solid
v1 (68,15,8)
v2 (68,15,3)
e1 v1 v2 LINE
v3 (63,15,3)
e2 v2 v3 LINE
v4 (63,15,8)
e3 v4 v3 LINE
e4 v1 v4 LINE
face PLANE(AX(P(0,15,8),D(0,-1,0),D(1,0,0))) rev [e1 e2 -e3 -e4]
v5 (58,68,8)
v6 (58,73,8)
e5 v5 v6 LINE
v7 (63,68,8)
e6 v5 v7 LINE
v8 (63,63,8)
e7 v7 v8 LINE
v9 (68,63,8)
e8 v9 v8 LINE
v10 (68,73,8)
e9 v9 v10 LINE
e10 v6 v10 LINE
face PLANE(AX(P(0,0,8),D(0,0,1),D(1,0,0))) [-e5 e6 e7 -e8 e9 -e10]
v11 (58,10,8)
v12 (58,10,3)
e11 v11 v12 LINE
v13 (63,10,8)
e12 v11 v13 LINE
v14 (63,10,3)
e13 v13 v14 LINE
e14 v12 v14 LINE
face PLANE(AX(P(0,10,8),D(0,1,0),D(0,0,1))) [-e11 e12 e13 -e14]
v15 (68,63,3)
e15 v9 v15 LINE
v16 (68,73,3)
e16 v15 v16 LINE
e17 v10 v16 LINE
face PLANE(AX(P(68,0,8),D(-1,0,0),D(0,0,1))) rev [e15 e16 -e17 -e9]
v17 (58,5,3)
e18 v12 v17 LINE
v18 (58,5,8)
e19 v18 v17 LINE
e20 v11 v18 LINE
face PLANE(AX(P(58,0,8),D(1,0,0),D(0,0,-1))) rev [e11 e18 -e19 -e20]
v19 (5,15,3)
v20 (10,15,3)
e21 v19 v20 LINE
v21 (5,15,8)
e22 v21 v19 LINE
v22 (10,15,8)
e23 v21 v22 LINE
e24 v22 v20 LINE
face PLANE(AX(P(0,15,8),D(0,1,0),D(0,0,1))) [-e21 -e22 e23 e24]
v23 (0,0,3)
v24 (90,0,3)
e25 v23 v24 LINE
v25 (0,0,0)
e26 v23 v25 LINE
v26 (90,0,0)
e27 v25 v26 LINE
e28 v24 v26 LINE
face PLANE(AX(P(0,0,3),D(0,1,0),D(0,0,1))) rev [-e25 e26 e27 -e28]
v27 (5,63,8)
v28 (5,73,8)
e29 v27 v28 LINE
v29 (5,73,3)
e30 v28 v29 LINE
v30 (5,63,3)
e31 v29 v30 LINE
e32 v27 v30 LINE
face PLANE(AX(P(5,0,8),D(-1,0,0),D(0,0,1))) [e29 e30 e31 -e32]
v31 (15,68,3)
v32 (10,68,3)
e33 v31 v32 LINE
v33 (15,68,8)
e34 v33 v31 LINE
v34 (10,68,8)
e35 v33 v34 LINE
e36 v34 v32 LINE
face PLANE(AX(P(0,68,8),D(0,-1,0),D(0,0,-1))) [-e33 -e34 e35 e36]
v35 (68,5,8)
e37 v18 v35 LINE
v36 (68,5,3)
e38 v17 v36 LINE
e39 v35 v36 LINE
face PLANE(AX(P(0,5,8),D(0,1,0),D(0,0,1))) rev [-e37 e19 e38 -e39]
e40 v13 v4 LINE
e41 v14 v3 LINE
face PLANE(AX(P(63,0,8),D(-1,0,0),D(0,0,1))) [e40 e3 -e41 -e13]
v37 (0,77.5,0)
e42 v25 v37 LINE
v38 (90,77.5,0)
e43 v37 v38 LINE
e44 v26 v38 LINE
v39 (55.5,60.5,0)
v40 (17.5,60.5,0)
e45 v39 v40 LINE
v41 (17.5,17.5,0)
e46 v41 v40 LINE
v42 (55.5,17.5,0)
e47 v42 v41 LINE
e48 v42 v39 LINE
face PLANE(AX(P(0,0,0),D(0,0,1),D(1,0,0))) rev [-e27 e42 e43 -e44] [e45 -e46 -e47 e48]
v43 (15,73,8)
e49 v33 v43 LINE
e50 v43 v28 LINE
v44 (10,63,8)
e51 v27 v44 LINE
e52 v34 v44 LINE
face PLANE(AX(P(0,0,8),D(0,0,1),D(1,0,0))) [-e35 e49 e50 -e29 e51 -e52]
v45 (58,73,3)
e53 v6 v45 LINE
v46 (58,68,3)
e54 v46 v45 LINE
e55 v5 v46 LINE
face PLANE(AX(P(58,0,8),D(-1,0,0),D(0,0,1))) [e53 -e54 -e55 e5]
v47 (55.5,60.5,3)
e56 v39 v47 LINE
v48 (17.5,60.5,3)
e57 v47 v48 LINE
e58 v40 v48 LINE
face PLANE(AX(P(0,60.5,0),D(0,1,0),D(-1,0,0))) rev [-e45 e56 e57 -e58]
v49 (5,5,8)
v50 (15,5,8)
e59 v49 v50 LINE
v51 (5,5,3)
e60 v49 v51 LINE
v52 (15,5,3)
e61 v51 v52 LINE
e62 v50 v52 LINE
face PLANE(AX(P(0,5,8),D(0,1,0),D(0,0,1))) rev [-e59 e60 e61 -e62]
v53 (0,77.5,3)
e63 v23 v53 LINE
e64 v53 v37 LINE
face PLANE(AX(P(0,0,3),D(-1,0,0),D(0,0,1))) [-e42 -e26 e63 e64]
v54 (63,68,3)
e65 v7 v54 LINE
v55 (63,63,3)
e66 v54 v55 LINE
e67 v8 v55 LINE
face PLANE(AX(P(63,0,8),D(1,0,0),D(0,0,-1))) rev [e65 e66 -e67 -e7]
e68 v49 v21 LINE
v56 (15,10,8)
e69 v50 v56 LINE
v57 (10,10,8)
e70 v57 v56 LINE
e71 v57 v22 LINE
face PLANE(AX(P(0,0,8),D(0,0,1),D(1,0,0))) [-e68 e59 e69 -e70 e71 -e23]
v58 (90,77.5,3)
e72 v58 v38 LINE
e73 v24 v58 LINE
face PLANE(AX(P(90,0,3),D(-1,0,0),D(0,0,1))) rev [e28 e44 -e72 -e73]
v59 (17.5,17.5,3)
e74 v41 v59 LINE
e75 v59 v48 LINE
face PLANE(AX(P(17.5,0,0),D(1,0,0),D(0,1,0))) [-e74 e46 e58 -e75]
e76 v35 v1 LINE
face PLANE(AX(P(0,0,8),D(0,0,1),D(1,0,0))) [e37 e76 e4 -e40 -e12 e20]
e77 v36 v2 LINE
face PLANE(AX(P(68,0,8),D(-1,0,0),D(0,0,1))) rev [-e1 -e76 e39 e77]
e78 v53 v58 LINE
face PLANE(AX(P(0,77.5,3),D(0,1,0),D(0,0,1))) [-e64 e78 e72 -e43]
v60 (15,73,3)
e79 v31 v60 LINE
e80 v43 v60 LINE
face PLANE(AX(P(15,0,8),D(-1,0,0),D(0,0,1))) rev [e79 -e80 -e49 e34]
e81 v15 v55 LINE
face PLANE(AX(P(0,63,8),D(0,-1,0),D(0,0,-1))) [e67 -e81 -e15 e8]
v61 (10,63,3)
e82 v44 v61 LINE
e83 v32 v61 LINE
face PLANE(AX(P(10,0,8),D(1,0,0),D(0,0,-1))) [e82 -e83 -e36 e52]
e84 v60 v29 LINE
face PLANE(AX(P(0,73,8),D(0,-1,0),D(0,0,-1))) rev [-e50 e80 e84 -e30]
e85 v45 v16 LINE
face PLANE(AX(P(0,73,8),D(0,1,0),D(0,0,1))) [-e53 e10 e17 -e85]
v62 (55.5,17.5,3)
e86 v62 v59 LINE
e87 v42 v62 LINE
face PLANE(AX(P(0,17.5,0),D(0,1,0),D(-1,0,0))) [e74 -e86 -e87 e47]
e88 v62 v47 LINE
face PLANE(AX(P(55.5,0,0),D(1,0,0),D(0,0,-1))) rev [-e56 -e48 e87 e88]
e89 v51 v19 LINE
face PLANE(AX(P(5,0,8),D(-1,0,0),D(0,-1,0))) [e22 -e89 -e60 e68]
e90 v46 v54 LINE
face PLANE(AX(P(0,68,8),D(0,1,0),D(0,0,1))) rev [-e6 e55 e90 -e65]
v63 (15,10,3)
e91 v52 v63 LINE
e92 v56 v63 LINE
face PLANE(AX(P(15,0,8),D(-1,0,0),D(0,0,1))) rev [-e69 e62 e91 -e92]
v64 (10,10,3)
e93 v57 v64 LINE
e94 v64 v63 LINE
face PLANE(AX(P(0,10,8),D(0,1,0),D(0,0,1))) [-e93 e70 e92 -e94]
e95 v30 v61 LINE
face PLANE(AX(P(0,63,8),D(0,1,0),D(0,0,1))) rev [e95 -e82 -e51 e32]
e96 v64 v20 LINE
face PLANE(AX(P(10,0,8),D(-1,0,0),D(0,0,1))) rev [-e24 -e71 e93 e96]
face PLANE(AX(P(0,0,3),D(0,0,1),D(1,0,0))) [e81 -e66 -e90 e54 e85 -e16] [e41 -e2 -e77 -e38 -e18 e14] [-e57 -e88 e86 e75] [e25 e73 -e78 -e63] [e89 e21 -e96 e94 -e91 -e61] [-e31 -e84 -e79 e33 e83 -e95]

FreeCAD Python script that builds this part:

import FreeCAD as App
import Part
import Sketcher

V = App.Vector

doc = App.newDocument("Part")
body = doc.addObject("PartDesign::Body", "Body")
body.AllowCompound = True

# Sketch on XY plane
sketch1 = body.newObject("Sketcher::SketchObject", "Sketch")
sketch1.AttachmentSupport = (doc.getObject("XY_Plane"), [""])
sketch1.MapMode = "FlatFace"
sketch1.addGeometry([
    Part.LineSegment(V(5, 5, 0), V(15, 5, 0)),  # 0
    Part.LineSegment(V(15, 5, 0), V(15, 10, 0)),  # 1
    Part.LineSegment(V(15, 10, 0), V(10, 10, 0)),  # 2
    Part.LineSegment(V(10, 10, 0), V(10, 15, 0)),  # 3
    Part.LineSegment(V(10, 15, 0), V(5, 15, 0)),  # 4
    Part.LineSegment(V(5, 15, 0), V(5, 5, 0)),  # 5
    Part.LineSegment(V(5, 73, 0), V(5, 63, 0)),  # 6
    Part.LineSegment(V(5, 63, 0), V(10, 63, 0)),  # 7
    Part.LineSegment(V(10, 63, 0), V(10, 68, 0)),  # 8
    Part.LineSegment(V(10, 68, 0), V(15, 68, 0)),  # 9
    Part.LineSegment(V(15, 68, 0), V(15, 73, 0)),  # 10
    Part.LineSegment(V(15, 73, 0), V(5, 73, 0)),  # 11
    Part.LineSegment(V(58, 73, 0), V(58, 68, 0)),  # 12
    Part.LineSegment(V(58, 68, 0), V(63, 68, 0)),  # 13
    Part.LineSegment(V(63, 68, 0), V(63, 63, 0)),  # 14
    Part.LineSegment(V(63, 63, 0), V(68, 63, 0)),  # 15
    Part.LineSegment(V(68, 63, 0), V(68, 73, 0)),  # 16
    Part.LineSegment(V(68, 73, 0), V(58, 73, 0)),  # 17
    Part.LineSegment(V(63, 15, 0), V(63, 10, 0)),  # 18
    Part.LineSegment(V(63, 10, 0), V(58, 10, 0)),  # 19
    Part.LineSegment(V(58, 10, 0), V(58, 5, 0)),  # 20
    Part.LineSegment(V(58, 5, 0), V(68, 5, 0)),  # 21
    Part.LineSegment(V(68, 5, 0), V(68, 15, 0)),  # 22
    Part.LineSegment(V(68, 15, 0), V(63, 15, 0)),  # 23
], False)
sketch1.addConstraint([
    Sketcher.Constraint("Coincident", 0, 2, 1, 1),
    Sketcher.Constraint("Coincident", 1, 2, 2, 1),
    Sketcher.Constraint("Coincident", 2, 2, 3, 1),
    Sketcher.Constraint("Coincident", 3, 2, 4, 1),
    Sketcher.Constraint("Coincident", 4, 2, 5, 1),
    Sketcher.Constraint("Coincident", 5, 2, 0, 1),
    Sketcher.Constraint("Coincident", 6, 2, 7, 1),
    Sketcher.Constraint("Coincident", 7, 2, 8, 1),
    Sketcher.Constraint("Coincident", 8, 2, 9, 1),
    Sketcher.Constraint("Coincident", 9, 2, 10, 1),
    Sketcher.Constraint("Coincident", 10, 2, 11, 1),
    Sketcher.Constraint("Coincident", 11, 2, 6, 1),
    Sketcher.Constraint("Coincident", 12, 2, 13, 1),
    Sketcher.Constraint("Coincident", 13, 2, 14, 1),
    Sketcher.Constraint("Coincident", 14, 2, 15, 1),
    Sketcher.Constraint("Coincident", 15, 2, 16, 1),
    Sketcher.Constraint("Coincident", 16, 2, 17, 1),
    Sketcher.Constraint("Coincident", 17, 2, 12, 1),
    Sketcher.Constraint("Coincident", 18, 2, 19, 1),
    Sketcher.Constraint("Coincident", 19, 2, 20, 1),
    Sketcher.Constraint("Coincident", 20, 2, 21, 1),
    Sketcher.Constraint("Coincident", 21, 2, 22, 1),
    Sketcher.Constraint("Coincident", 22, 2, 23, 1),
    Sketcher.Constraint("Coincident", 23, 2, 18, 1),
    Sketcher.Constraint("Horizontal", 0),
    Sketcher.Constraint("Vertical", 1),
    Sketcher.Constraint("Horizontal", 2),
    Sketcher.Constraint("Vertical", 3),
    Sketcher.Constraint("Horizontal", 4),
    Sketcher.Constraint("Vertical", 5),
    Sketcher.Constraint("Vertical", 6),
    Sketcher.Constraint("Horizontal", 7),
    Sketcher.Constraint("Vertical", 8),
    Sketcher.Constraint("Horizontal", 9),
    Sketcher.Constraint("Vertical", 10),
    Sketcher.Constraint("Horizontal", 11),
    Sketcher.Constraint("Vertical", 12),
    Sketcher.Constraint("Horizontal", 13),
    Sketcher.Constraint("Vertical", 14),
    Sketcher.Constraint("Horizontal", 15),
    Sketcher.Constraint("Vertical", 16),
    Sketcher.Constraint("Horizontal", 17),
    Sketcher.Constraint("Vertical", 18),
    Sketcher.Constraint("Horizontal", 19),
    Sketcher.Constraint("Vertical", 20),
    Sketcher.Constraint("Horizontal", 21),
    Sketcher.Constraint("Vertical", 22),
    Sketcher.Constraint("Horizontal", 23),
    Sketcher.Constraint("Horizontal", 9, 2, 12, 2),
    Sketcher.Constraint("Horizontal", 7, 2, 14, 2),
    Sketcher.Constraint("Horizontal", 11, 2, 16, 2),
    Sketcher.Constraint("Horizontal", 2, 2, 18, 2),
    Sketcher.Constraint("Horizontal", 5, 2, 20, 2),
    Sketcher.Constraint("Horizontal", 4, 2, 22, 2),
    Sketcher.Constraint("Vertical", 5, 2, 6, 2),
    Sketcher.Constraint("Vertical", 3, 2, 7, 2),
    Sketcher.Constraint("Vertical", 1, 2, 9, 2),
    Sketcher.Constraint("Vertical", 14, 2, 18, 2),
    Sketcher.Constraint("Vertical", 17, 2, 19, 2),
    Sketcher.Constraint("Vertical", 16, 2, 21, 2),
    Sketcher.Constraint("Equal", 2, 4),
    Sketcher.Constraint("Equal", 9, 13),
    Sketcher.Constraint("Equal", 13, 15),
    Sketcher.Constraint("Equal", 23, 1),
    Sketcher.Constraint("Equal", 1, 3),
    Sketcher.Constraint("Equal", 5, 6),
    Sketcher.Constraint("Equal", 3, 8),
    Sketcher.Constraint("DistanceX", 0, 1, 0, 2, 10.0),
    Sketcher.Constraint("DistanceX", -1, 1, 0, 2, 15.0),
    Sketcher.Constraint("DistanceY", -1, 1, 0, 2, 5.0),
    Sketcher.Constraint("DistanceY", -1, 1, 6, 2, 63.0),
    Sketcher.Constraint("DistanceX", -1, 1, 12, 2, 58.0),
])
pad1 = body.newObject("PartDesign::Pad", "Pad")
pad1.Profile = sketch1
pad1.Length = 8

# Sketch on XY plane
sketch2 = body.newObject("Sketcher::SketchObject", "Sketch001")
sketch2.AttachmentSupport = (doc.getObject("XY_Plane"), [""])
sketch2.MapMode = "FlatFace"
sketch2.addGeometry([
    Part.LineSegment(V(0, 78, 0), V(0, 0, 0)),  # 0
    Part.LineSegment(V(0, 0, 0), V(90, 0, 0)),  # 1
    Part.LineSegment(V(90, 0, 0), V(90, 78, 0)),  # 2
    Part.LineSegment(V(90, 78, 0), V(0, 78, 0)),  # 3
    Part.LineSegment(V(15, 10, 0), V(15, 5, 0)),  # 4
    Part.LineSegment(V(15, 5, 0), V(5, 5, 0)),  # 5
    Part.LineSegment(V(5, 5, 0), V(5, 15, 0)),  # 6
    Part.LineSegment(V(5, 15, 0), V(10, 15, 0)),  # 7
    Part.LineSegment(V(10, 15, 0), V(10, 10, 0)),  # 8
    Part.LineSegment(V(10, 10, 0), V(15, 10, 0)),  # 9
    Part.LineSegment(V(68, 5, 0), V(58, 5, 0)),  # 10
    Part.LineSegment(V(58, 5, 0), V(58, 10, 0)),  # 11
    Part.LineSegment(V(58, 10, 0), V(63, 10, 0)),  # 12
    Part.LineSegment(V(63, 10, 0), V(63, 15, 0)),  # 13
    Part.LineSegment(V(63, 15, 0), V(68, 15, 0)),  # 14
    Part.LineSegment(V(68, 15, 0), V(68, 5, 0)),  # 15
    Part.LineSegment(V(10, 63, 0), V(5, 63, 0)),  # 16
    Part.LineSegment(V(5, 63, 0), V(5, 73, 0)),  # 17
    Part.LineSegment(V(5, 73, 0), V(15, 73, 0)),  # 18
    Part.LineSegment(V(15, 73, 0), V(15, 68, 0)),  # 19
    Part.LineSegment(V(15, 68, 0), V(10, 68, 0)),  # 20
    Part.LineSegment(V(10, 68, 0), V(10, 63, 0)),  # 21
    Part.LineSegment(V(63, 63, 0), V(63, 68, 0)),  # 22
    Part.LineSegment(V(63, 68, 0), V(58, 68, 0)),  # 23
    Part.LineSegment(V(58, 68, 0), V(58, 73, 0)),  # 24
    Part.LineSegment(V(58, 73, 0), V(68, 73, 0)),  # 25
    Part.LineSegment(V(68, 73, 0), V(68, 63, 0)),  # 26
    Part.LineSegment(V(68, 63, 0), V(63, 63, 0)),  # 27
], False)
sketch2.addConstraint([
    Sketcher.Constraint("Coincident", 0, 2, 1, 1),
    Sketcher.Constraint("Coincident", 1, 2, 2, 1),
    Sketcher.Constraint("Coincident", 2, 2, 3, 1),
    Sketcher.Constraint("Coincident", 3, 2, 0, 1),
    Sketcher.Constraint("Coincident", 4, 2, 5, 1),
    Sketcher.Constraint("Coincident", 5, 2, 6, 1),
    Sketcher.Constraint("Coincident", 6, 2, 7, 1),
    Sketcher.Constraint("Coincident", 7, 2, 8, 1),
    Sketcher.Constraint("Coincident", 8, 2, 9, 1),
    Sketcher.Constraint("Coincident", 9, 2, 4, 1),
    Sketcher.Constraint("Coincident", 10, 2, 11, 1),
    Sketcher.Constraint("Coincident", 11, 2, 12, 1),
    Sketcher.Constraint("Coincident", 12, 2, 13, 1),
    Sketcher.Constraint("Coincident", 13, 2, 14, 1),
    Sketcher.Constraint("Coincident", 14, 2, 15, 1),
    Sketcher.Constraint("Coincident", 15, 2, 10, 1),
    Sketcher.Constraint("Coincident", 16, 2, 17, 1),
    Sketcher.Constraint("Coincident", 17, 2, 18, 1),
    Sketcher.Constraint("Coincident", 18, 2, 19, 1),
    Sketcher.Constraint("Coincident", 19, 2, 20, 1),
    Sketcher.Constraint("Coincident", 20, 2, 21, 1),
    Sketcher.Constraint("Coincident", 21, 2, 16, 1),
    Sketcher.Constraint("Coincident", 22, 2, 23, 1),
    Sketcher.Constraint("Coincident", 23, 2, 24, 1),
    Sketcher.Constraint("Coincident", 24, 2, 25, 1),
    Sketcher.Constraint("Coincident", 25, 2, 26, 1),
    Sketcher.Constraint("Coincident", 26, 2, 27, 1),
    Sketcher.Constraint("Coincident", 27, 2, 22, 1),
    Sketcher.Constraint("Vertical", 0),
    Sketcher.Constraint("Horizontal", 1),
    Sketcher.Constraint("Vertical", 2),
    Sketcher.Constraint("Horizontal", 3),
    Sketcher.Constraint("Vertical", 4),
    Sketcher.Constraint("Horizontal", 5),
    Sketcher.Constraint("Vertical", 6),
    Sketcher.Constraint("Horizontal", 7),
    Sketcher.Constraint("Vertical", 8),
    Sketcher.Constraint("Horizontal", 9),
    Sketcher.Constraint("Horizontal", 10),
    Sketcher.Constraint("Vertical", 11),
    Sketcher.Constraint("Horizontal", 12),
    Sketcher.Constraint("Vertical", 13),
    Sketcher.Constraint("Horizontal", 14),
    Sketcher.Constraint("Vertical", 15),
    Sketcher.Constraint("Horizontal", 16),
    Sketcher.Constraint("Vertical", 17),
    Sketcher.Constraint("Horizontal", 18),
    Sketcher.Constraint("Vertical", 19),
    Sketcher.Constraint("Horizontal", 20),
    Sketcher.Constraint("Vertical", 21),
    Sketcher.Constraint("Vertical", 22),
    Sketcher.Constraint("Horizontal", 23),
    Sketcher.Constraint("Vertical", 24),
    Sketcher.Constraint("Horizontal", 25),
    Sketcher.Constraint("Vertical", 26),
    Sketcher.Constraint("Horizontal", 27),
    Sketcher.Constraint("Coincident", 0, 2, -1, 1),
    Sketcher.Constraint("Horizontal", 5, 2, 10, 2),
    Sketcher.Constraint("Horizontal", 9, 2, 11, 2),
    Sketcher.Constraint("Horizontal", 7, 2, 13, 2),
    Sketcher.Constraint("Horizontal", 20, 2, 22, 2),
    Sketcher.Constraint("Horizontal", 18, 2, 24, 2),
    Sketcher.Constraint("Horizontal", 21, 2, 26, 2),
    Sketcher.Constraint("Vertical", 6, 2, 16, 2),
    Sketcher.Constraint("Vertical", 9, 2, 18, 2),
    Sketcher.Constraint("Vertical", 8, 2, 20, 2),
    Sketcher.Constraint("Vertical", 13, 2, 22, 2),
    Sketcher.Constraint("Vertical", 11, 2, 23, 2),
    Sketcher.Constraint("Vertical", 15, 2, 25, 2),
    Sketcher.Constraint("Equal", 7, 9),
    Sketcher.Constraint("Equal", 5, 10),
    Sketcher.Constraint("Equal", 9, 12),
    Sketcher.Constraint("Equal", 27, 4),
    Sketcher.Constraint("Equal", 25, 6),
    Sketcher.Constraint("Equal", 15, 17),
    Sketcher.Constraint("Equal", 13, 19),
    Sketcher.Constraint("DistanceX", 1, 1, 1, 2, 90.0),
    Sketcher.Constraint("DistanceX", 5, 2, 5, 1, 10.0),
    Sketcher.Constraint("DistanceY", 0, 2, 0, 1, 77.5),
    Sketcher.Constraint("DistanceX", -1, 1, 4, 2, 15.0),
    Sketcher.Constraint("DistanceY", -1, 1, 4, 2, 5.0),
    Sketcher.Constraint("DistanceX", -1, 1, 10, 2, 58.0),
    Sketcher.Constraint("DistanceY", -1, 1, 16, 2, 63.0),
])
pad2 = body.newObject("PartDesign::Pad", "Pad001")
pad2.Profile = sketch2
pad2.Length = 3

# Sketch on XY plane
sketch3 = body.newObject("Sketcher::SketchObject", "Sketch002")
sketch3.AttachmentSupport = (doc.getObject("XY_Plane"), [""])
sketch3.MapMode = "FlatFace"
sketch3.AttachmentOffset = App.Placement(V(0, 0, 3), App.Rotation())
sketch3.addGeometry([
    Part.LineSegment(V(18, 60, 0), V(18, 18, 0)),
    Part.LineSegment(V(18, 18, 0), V(56, 18, 0)),
    Part.LineSegment(V(56, 18, 0), V(56, 60, 0)),
    Part.LineSegment(V(56, 60, 0), V(18, 60, 0)),
], False)
sketch3.addConstraint([
    Sketcher.Constraint("Coincident", 0, 2, 1, 1),
    Sketcher.Constraint("Coincident", 1, 2, 2, 1),
    Sketcher.Constraint("Coincident", 2, 2, 3, 1),
    Sketcher.Constraint("Coincident", 3, 2, 0, 1),
    Sketcher.Constraint("Vertical", 0),
    Sketcher.Constraint("Horizontal", 1),
    Sketcher.Constraint("Vertical", 2),
    Sketcher.Constraint("Horizontal", 3),
    Sketcher.Constraint("DistanceX", 1, 1, 1, 2, 38.0),
    Sketcher.Constraint("DistanceY", 0, 2, 0, 1, 43.0),
    Sketcher.Constraint("DistanceX", -1, 1, 0, 2, 17.5),
    Sketcher.Constraint("DistanceY", -1, 1, 0, 2, 17.5),
])
pocket1 = body.newObject("PartDesign::Pocket", "Pocket")
pocket1.Profile = sketch3
pocket1.Length = 3

doc.recompute()
